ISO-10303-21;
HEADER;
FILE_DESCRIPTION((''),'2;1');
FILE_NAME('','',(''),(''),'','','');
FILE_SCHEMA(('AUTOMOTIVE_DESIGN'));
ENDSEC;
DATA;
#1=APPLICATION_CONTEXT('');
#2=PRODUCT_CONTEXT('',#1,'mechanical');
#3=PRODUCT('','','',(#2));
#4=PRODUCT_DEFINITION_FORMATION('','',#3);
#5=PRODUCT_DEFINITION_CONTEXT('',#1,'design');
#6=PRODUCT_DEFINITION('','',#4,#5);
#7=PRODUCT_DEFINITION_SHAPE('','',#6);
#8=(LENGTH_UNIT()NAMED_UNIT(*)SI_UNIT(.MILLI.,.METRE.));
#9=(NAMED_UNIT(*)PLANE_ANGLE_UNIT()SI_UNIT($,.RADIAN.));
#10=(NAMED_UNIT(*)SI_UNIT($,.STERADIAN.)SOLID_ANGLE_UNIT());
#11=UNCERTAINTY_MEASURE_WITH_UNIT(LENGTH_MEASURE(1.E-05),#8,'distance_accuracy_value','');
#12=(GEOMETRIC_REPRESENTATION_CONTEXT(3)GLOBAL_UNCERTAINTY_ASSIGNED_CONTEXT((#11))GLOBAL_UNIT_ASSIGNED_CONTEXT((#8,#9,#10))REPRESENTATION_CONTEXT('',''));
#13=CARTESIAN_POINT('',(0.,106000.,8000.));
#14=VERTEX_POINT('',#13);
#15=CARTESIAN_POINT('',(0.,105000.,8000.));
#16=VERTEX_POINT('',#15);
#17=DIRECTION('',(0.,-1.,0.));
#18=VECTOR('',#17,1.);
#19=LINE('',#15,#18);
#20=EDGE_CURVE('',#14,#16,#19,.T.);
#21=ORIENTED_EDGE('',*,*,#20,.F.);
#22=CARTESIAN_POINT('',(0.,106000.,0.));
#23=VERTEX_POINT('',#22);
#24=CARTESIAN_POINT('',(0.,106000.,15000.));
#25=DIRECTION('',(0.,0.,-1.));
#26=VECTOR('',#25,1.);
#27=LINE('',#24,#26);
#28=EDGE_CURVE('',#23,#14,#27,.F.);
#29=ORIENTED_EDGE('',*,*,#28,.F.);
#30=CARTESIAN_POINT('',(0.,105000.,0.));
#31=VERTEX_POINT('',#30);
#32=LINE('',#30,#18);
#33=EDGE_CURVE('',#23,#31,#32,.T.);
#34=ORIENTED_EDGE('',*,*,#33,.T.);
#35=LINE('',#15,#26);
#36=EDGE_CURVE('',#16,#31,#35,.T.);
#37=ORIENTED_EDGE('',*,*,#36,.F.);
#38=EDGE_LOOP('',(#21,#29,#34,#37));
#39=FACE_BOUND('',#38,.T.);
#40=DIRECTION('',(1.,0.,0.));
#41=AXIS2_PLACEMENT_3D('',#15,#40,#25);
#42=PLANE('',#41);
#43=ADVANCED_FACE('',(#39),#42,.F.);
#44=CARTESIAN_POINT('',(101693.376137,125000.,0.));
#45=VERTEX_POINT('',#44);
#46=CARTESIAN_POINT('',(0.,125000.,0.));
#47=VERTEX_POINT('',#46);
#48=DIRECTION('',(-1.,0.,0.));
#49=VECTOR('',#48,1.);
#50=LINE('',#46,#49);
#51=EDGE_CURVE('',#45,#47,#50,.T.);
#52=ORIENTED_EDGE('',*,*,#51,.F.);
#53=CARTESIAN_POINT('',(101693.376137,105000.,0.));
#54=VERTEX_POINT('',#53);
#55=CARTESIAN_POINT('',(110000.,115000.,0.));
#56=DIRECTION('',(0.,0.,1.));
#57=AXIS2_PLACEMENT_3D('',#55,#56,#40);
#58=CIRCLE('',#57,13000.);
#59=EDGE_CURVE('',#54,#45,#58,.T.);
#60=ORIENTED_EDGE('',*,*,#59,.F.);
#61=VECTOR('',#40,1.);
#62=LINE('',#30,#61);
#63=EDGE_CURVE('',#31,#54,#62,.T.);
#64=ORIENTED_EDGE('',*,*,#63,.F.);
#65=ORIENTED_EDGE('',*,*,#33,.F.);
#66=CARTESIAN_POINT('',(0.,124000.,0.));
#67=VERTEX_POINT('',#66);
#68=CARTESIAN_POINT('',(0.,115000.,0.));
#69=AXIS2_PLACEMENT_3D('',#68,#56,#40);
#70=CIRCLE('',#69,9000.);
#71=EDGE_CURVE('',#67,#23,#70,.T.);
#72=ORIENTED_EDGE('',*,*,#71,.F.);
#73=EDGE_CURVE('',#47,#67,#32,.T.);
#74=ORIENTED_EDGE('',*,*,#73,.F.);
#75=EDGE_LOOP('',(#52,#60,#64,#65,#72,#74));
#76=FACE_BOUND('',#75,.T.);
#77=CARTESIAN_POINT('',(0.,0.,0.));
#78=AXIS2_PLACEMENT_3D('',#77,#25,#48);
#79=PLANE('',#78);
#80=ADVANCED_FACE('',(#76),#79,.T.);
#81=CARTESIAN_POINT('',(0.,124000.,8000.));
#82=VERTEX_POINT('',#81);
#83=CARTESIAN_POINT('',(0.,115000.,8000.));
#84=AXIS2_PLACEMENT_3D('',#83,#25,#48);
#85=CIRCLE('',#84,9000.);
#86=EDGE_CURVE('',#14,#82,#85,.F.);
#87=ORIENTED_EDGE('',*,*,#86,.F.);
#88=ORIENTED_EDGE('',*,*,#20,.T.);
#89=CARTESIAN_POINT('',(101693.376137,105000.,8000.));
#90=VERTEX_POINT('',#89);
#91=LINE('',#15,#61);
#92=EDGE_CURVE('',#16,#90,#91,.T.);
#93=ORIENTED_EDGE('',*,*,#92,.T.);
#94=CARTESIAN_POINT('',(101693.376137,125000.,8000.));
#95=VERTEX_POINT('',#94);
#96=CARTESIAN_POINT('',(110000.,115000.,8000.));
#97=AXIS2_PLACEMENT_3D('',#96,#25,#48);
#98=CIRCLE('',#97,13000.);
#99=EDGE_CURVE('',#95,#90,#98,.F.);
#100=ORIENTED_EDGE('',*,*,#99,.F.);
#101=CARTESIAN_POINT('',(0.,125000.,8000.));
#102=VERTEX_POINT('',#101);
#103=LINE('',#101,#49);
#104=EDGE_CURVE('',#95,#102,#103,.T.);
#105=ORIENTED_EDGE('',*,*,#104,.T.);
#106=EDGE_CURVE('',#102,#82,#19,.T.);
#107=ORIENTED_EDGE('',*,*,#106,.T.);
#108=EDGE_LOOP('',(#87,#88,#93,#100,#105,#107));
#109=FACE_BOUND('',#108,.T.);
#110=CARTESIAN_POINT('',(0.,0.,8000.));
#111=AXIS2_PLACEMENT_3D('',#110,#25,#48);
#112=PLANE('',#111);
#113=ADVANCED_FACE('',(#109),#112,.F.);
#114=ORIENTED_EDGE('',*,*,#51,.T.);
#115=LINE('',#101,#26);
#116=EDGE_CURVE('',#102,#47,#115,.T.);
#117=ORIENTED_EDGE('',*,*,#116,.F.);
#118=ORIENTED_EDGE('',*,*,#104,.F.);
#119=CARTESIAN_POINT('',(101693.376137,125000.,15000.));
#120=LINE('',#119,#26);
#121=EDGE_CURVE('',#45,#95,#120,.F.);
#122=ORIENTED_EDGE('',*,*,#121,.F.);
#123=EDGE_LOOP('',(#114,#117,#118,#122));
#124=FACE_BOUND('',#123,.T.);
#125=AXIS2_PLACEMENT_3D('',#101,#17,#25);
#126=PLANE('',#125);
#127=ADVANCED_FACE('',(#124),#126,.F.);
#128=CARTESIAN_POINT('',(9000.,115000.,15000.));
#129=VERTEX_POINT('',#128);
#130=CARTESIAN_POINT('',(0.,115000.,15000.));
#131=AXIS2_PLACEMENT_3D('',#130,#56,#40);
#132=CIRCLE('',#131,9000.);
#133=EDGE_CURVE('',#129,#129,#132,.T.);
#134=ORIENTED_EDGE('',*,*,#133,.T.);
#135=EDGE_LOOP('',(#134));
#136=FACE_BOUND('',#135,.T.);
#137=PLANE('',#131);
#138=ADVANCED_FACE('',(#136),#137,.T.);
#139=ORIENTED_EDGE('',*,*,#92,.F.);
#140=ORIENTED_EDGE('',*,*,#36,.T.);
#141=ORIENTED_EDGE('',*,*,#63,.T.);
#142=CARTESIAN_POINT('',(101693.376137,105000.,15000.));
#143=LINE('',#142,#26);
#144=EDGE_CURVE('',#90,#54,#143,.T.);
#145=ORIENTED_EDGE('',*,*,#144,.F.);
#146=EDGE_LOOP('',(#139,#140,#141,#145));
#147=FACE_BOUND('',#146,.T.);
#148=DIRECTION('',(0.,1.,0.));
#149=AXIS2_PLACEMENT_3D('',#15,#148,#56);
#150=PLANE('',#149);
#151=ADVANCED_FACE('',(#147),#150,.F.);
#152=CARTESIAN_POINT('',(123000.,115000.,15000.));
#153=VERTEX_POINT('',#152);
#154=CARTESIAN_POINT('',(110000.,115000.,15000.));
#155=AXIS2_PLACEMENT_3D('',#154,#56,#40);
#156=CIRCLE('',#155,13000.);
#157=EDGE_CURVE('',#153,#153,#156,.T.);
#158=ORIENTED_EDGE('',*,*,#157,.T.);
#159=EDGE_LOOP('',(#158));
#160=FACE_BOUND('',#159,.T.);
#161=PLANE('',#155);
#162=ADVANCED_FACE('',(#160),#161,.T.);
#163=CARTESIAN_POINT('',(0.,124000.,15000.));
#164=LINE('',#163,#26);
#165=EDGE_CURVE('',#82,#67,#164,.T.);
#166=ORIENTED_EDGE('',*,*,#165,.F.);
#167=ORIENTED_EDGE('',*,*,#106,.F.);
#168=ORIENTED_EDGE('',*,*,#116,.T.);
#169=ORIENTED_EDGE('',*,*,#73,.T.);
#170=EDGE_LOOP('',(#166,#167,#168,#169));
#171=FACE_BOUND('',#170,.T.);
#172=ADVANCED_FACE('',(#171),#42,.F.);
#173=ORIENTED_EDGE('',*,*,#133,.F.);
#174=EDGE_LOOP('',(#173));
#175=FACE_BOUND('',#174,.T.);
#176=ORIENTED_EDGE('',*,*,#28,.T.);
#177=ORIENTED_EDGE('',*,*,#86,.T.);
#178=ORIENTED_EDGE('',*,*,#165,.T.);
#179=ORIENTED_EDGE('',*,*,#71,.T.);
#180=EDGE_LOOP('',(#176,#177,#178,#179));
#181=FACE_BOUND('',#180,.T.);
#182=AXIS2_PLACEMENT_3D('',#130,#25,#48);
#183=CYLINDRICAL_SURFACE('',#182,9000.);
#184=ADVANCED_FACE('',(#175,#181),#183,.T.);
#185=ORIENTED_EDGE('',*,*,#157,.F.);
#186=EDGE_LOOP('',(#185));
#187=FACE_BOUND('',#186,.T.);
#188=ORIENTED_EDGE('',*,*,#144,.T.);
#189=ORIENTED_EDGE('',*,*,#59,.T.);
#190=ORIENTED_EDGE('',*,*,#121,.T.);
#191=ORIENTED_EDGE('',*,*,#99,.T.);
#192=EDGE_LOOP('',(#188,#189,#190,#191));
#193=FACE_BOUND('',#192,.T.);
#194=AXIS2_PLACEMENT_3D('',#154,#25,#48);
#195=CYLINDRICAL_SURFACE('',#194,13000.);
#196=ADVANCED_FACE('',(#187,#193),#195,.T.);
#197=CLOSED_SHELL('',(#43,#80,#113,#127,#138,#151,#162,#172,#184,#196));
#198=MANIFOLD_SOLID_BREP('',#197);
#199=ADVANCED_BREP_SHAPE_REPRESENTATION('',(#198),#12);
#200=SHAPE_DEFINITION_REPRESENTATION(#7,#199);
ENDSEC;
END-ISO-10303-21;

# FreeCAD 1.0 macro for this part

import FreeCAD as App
import Part
import Sketcher
from FreeCAD import Vector


def add_polygon(sketch, points):
    """Adds a closed chain of lines whose ends are joined by coincident constraints."""
    first, n = sketch.GeometryCount, len(points)
    for a, b in zip(points, points[1:] + points[:1]):
        sketch.addGeometry(Part.LineSegment(App.Vector(*a, 0), App.Vector(*b, 0)), False)
    for i in range(n):
        sketch.addConstraint(Sketcher.Constraint("Coincident", first + i, 2, first + (i + 1) % n, 1))

doc = App.newDocument("Part")
body = doc.addObject("PartDesign::Body", "Body")

# Sketch on XY plane
sketch1 = body.newObject("Sketcher::SketchObject", "Sketch")
sketch1.AttachmentSupport = (doc.getObject("XY_Plane"), [""])
sketch1.MapMode = "FlatFace"
add_polygon(sketch1, [(0, 125000), (0, 105000), (110000, 105000), (110000, 125000)])  # lines 0-3
sketch1.addConstraint(Sketcher.Constraint("Vertical", 0))
sketch1.addConstraint(Sketcher.Constraint("Horizontal", 1))
sketch1.addConstraint(Sketcher.Constraint("Vertical", 2))
sketch1.addConstraint(Sketcher.Constraint("Horizontal", 3))
sketch1.addConstraint(Sketcher.Constraint("PointOnObject", 0, 2, -2))
sketch1.addConstraint(Sketcher.Constraint("DistanceX", 1, 1, 1, 2, 110000.0))
sketch1.addConstraint(Sketcher.Constraint("DistanceY", 0, 2, 0, 1, 20000.0))
sketch1.addConstraint(Sketcher.Constraint("DistanceY", -1, 1, 0, 2, 105000.0))
pad1 = body.newObject("PartDesign::Pad", "Pad")
pad1.Profile = sketch1
pad1.Length = 8000

# Sketch on XY plane
sketch2 = body.newObject("Sketcher::SketchObject", "Sketch001")
sketch2.AttachmentSupport = (doc.getObject("XY_Plane"), [""])
sketch2.MapMode = "FlatFace"
sketch2.addGeometry(Part.Circle(Vector(0, 115000, 0), Vector(0, 0, 1), 9000), False)
sketch2.addConstraint(Sketcher.Constraint("PointOnObject", 0, 3, -2))
sketch2.addConstraint(Sketcher.Constraint("Diameter", 0, 18000.0))
sketch2.addConstraint(Sketcher.Constraint("DistanceY", -1, 1, 0, 3, 115000.0))
pad2 = body.newObject("PartDesign::Pad", "Pad001")
pad2.Profile = sketch2
pad2.Length = 15000

# Sketch on XY plane
sketch3 = body.newObject("Sketcher::SketchObject", "Sketch002")
sketch3.AttachmentSupport = (doc.getObject("XY_Plane"), [""])
sketch3.MapMode = "FlatFace"
sketch3.addGeometry(Part.Circle(Vector(110000, 115000, 0), Vector(0, 0, 1), 13000), False)
sketch3.addConstraint(Sketcher.Constraint("Diameter", 0, 26000.0))
sketch3.addConstraint(Sketcher.Constraint("DistanceX", -1, 1, 0, 3, 110000.0))
sketch3.addConstraint(Sketcher.Constraint("DistanceY", -1, 1, 0, 3, 115000.0))
pad3 = body.newObject("PartDesign::Pad", "Pad002")
pad3.Profile = sketch3
pad3.Length = 15000

doc.recompute()
